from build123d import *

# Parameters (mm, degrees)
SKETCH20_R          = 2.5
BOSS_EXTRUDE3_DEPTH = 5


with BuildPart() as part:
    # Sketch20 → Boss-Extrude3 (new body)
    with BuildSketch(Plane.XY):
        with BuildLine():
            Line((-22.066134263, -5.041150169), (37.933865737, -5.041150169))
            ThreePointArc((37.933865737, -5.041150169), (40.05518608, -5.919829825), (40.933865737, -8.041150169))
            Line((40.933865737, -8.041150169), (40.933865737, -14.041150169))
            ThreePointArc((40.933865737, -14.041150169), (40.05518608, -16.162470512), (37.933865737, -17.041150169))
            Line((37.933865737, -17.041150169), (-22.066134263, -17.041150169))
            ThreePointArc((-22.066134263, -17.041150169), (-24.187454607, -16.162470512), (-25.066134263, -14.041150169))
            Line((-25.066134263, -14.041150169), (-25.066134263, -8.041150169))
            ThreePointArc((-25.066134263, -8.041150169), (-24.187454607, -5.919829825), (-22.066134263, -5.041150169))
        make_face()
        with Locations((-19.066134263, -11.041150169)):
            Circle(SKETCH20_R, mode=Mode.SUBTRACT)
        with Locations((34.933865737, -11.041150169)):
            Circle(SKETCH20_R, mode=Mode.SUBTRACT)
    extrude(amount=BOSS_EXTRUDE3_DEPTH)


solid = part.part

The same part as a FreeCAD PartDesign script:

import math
import FreeCAD as App
import Part
import Sketcher

V = App.Vector
Q = App.Units.Quantity

doc = App.newDocument("Part")
body = doc.addObject("PartDesign::Body", "Body")

# Sketch on XY plane
sketch1 = body.newObject("Sketcher::SketchObject", "Sketch")
sketch1.AttachmentSupport = (doc.getObject("XY_Plane"), [""])
sketch1.MapMode = "FlatFace"
sketch1.addGeometry([
    Part.LineSegment(V(37.9, -5, 0), V(-22.1, -5, 0)),  # 0
    Part.ArcOfCircle(Part.Circle(V(-22.1, -8, 0), V(0, 0, 1), 3), math.radians(90), math.radians(180)),  # 1
    Part.LineSegment(V(-25.1, -8, 0), V(-25.1, -14, 0)),  # 2
    Part.ArcOfCircle(Part.Circle(V(-22.1, -14, 0), V(0, 0, 1), 3), math.radians(180), math.radians(270)),  # 3
    Part.LineSegment(V(-22.1, -17, 0), V(37.9, -17, 0)),  # 4
    Part.ArcOfCircle(Part.Circle(V(37.9, -14, 0), V(0, 0, 1), 3), math.radians(-90), math.radians(0)),  # 5
    Part.LineSegment(V(40.9, -14, 0), V(40.9, -8, 0)),  # 6
    Part.ArcOfCircle(Part.Circle(V(37.9, -8, 0), V(0, 0, 1), 3), math.radians(0), math.radians(90)),  # 7
    Part.Circle(V(34.9, -11, 0), V(0, 0, 1), 2.5),  # 8
    Part.Circle(V(-19.1, -11, 0), V(0, 0, 1), 2.5),  # 9
], False)
sketch1.addConstraint([
    Sketcher.Constraint("Tangent", 0, 2, 1, 1),
    Sketcher.Constraint("Tangent", 1, 2, 2, 1),
    Sketcher.Constraint("Tangent", 2, 2, 3, 1),
    Sketcher.Constraint("Tangent", 3, 2, 4, 1),
    Sketcher.Constraint("Tangent", 4, 2, 5, 1),
    Sketcher.Constraint("Tangent", 5, 2, 6, 1),
    Sketcher.Constraint("Tangent", 6, 2, 7, 1),
    Sketcher.Constraint("Tangent", 7, 2, 0, 1),
    Sketcher.Constraint("Horizontal", 0),
    Sketcher.Constraint("Vertical", 2),
    Sketcher.Constraint("Horizontal", 4),
    Sketcher.Constraint("Vertical", 6),
    Sketcher.Constraint("Equal", 1, 3),
    Sketcher.Constraint("Equal", 3, 5),
    Sketcher.Constraint("Equal", 5, 7),
    Sketcher.Constraint("Equal", 8, 9),
    Sketcher.Constraint("Horizontal", 8, 3, 9, 3),
    Sketcher.Constraint("Diameter", 8, Q("5 mm")),
    Sketcher.Constraint("Radius", 1, Q("3 mm")),
    Sketcher.Constraint("DistanceX", 0, 2, 0, 1, Q("60 mm")),
    Sketcher.Constraint("DistanceY", 2, 2, 2, 1, Q("6 mm")),
    Sketcher.Constraint("DistanceX", 8, 3, 5, 3, Q("3 mm")),
    Sketcher.Constraint("DistanceY", 5, 3, 8, 3, Q("3 mm")),
    Sketcher.Constraint("DistanceX", 3, 3, 9, 3, Q("3 mm")),
    Sketcher.Constraint("DistanceY", 1, 3, -1, 1, Q("8.04115 mm")),
    Sketcher.Constraint("DistanceX", 1, 3, -1, 1, Q("22.066134 mm")),
])
pad1 = body.newObject("PartDesign::Pad", "Pad")
pad1.Profile = sketch1
pad1.Length = 5

doc.recompute()
